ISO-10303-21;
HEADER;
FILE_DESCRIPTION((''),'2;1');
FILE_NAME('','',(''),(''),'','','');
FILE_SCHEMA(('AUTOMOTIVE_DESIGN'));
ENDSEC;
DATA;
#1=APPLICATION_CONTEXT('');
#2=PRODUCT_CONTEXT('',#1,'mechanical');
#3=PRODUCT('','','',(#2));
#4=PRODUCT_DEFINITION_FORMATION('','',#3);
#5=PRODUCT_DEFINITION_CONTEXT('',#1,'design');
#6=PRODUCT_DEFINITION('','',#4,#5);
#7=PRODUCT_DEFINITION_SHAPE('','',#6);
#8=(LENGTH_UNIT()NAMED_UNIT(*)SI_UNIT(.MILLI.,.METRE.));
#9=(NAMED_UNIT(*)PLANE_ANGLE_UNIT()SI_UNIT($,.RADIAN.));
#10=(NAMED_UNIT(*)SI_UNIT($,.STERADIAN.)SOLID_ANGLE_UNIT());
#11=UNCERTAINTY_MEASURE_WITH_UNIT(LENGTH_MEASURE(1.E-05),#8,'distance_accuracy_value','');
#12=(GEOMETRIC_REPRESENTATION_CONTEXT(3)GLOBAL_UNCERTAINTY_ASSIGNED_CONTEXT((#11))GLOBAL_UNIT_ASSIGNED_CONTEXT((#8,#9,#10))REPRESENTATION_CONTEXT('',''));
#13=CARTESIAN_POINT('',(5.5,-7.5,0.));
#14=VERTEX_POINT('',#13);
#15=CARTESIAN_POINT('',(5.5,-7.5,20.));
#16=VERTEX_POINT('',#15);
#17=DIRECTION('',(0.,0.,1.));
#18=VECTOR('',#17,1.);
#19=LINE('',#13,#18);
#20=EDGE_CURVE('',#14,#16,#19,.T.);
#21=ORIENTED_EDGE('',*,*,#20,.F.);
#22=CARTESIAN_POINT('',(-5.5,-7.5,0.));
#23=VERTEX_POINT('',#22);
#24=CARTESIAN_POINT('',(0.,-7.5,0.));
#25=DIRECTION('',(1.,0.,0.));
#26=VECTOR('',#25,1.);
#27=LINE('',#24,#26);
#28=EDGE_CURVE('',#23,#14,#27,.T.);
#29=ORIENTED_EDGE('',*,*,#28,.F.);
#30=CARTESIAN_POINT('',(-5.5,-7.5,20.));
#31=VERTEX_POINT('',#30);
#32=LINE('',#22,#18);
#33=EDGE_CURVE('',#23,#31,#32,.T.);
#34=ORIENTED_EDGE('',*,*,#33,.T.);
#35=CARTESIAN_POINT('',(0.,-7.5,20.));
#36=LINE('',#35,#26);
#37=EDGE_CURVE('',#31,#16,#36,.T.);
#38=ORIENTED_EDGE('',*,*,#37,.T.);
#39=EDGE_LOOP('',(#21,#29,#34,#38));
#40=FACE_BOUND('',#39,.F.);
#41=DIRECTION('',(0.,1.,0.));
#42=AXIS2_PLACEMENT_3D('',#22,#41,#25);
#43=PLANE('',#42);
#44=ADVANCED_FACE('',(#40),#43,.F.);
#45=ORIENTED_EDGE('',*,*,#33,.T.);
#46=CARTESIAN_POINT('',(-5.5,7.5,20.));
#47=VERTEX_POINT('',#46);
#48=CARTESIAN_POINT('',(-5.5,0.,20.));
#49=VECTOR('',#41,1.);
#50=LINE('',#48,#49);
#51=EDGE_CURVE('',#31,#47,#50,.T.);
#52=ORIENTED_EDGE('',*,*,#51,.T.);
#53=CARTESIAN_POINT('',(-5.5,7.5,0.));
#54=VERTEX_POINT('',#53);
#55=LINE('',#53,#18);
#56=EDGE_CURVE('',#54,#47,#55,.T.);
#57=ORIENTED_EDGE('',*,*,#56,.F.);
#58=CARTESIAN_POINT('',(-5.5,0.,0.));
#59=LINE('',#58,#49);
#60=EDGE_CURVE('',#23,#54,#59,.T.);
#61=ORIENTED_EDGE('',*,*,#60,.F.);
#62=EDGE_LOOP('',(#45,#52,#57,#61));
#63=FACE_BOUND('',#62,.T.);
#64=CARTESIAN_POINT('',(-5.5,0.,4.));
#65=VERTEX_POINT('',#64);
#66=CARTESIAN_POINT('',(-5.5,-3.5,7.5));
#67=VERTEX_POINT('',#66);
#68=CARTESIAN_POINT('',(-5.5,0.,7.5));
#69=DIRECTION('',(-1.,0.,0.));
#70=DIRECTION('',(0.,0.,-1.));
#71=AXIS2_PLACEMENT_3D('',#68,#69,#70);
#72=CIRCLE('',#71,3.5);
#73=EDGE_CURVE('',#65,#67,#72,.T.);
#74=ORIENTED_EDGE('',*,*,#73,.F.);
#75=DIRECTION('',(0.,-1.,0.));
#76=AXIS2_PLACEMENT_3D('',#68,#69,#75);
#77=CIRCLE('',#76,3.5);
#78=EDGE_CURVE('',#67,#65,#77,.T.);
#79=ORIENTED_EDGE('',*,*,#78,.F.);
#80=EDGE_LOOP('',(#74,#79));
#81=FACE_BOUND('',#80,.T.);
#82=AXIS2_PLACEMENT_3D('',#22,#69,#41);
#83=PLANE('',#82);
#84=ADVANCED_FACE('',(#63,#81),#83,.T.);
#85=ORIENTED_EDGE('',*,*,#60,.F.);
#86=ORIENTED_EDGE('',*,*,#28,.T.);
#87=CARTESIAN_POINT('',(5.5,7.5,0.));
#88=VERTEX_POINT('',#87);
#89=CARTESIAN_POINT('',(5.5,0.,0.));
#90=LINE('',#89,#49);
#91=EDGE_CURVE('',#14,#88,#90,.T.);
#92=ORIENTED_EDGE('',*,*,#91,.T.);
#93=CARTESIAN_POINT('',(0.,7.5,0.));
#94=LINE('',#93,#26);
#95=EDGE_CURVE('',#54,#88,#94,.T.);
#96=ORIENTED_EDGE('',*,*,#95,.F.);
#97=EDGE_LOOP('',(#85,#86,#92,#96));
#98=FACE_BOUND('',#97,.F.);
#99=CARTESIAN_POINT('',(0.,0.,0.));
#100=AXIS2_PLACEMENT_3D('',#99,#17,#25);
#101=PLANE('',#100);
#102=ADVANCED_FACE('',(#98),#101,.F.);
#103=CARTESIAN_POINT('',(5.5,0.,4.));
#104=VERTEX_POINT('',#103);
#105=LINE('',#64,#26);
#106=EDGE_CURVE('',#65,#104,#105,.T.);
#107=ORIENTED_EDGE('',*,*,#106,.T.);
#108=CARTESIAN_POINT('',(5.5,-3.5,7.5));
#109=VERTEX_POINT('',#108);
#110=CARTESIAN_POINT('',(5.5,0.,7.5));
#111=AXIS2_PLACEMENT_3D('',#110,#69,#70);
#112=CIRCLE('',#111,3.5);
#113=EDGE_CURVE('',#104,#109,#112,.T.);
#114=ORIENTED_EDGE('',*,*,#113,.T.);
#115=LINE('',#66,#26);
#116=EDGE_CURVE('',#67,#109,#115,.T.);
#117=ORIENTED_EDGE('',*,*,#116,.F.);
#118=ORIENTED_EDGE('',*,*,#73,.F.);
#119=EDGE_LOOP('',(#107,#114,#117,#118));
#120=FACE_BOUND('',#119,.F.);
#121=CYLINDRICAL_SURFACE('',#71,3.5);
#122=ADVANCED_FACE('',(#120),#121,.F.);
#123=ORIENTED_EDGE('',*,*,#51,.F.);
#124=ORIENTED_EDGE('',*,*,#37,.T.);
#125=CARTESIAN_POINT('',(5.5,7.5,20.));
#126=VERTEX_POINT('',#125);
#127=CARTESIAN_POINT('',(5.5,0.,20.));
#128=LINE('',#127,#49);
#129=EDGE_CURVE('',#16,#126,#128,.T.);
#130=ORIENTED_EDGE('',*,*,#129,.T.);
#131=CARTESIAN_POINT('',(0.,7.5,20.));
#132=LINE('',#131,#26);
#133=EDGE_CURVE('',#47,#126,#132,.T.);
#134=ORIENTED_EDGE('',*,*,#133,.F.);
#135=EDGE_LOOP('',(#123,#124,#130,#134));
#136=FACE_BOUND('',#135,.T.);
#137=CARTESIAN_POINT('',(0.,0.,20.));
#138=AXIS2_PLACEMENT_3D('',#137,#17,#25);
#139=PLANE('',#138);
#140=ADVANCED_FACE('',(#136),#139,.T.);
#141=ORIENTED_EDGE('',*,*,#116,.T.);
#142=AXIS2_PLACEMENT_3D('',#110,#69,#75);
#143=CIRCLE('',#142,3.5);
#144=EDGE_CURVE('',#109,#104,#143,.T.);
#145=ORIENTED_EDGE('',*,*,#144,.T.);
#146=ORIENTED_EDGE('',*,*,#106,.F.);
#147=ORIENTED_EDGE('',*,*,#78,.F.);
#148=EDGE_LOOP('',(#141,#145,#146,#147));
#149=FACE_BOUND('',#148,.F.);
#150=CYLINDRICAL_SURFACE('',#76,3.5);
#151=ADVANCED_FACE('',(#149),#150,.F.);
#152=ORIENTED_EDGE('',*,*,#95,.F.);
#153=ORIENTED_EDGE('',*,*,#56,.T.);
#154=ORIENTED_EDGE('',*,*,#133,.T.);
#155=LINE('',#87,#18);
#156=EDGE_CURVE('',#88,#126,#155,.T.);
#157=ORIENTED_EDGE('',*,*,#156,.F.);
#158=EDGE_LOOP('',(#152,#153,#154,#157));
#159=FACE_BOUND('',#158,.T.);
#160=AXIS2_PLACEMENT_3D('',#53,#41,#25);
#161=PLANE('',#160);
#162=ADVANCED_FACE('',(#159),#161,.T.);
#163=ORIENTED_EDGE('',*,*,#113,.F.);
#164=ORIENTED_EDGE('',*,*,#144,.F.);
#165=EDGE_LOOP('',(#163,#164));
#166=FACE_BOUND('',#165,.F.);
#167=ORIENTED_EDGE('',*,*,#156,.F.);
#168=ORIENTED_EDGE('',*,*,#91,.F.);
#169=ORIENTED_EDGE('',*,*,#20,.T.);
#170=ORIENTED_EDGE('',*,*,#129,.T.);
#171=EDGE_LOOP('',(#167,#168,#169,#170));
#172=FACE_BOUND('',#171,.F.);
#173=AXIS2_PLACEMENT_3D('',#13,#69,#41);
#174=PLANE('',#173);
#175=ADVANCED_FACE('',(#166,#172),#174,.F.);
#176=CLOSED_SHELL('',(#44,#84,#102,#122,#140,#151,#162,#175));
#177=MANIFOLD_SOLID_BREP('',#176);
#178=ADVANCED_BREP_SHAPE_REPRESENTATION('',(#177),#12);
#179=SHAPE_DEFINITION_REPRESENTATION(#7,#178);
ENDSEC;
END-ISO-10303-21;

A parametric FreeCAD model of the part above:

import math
import FreeCAD as App
import Part
import Sketcher
from FreeCAD import Vector
Q = App.Units.Quantity


def add_polygon(sketch, points):
    """Adds a closed chain of lines whose ends are joined by coincident constraints."""
    first, n = sketch.GeometryCount, len(points)
    for a, b in zip(points, points[1:] + points[:1]):
        sketch.addGeometry(Part.LineSegment(App.Vector(*a, 0), App.Vector(*b, 0)), False)
    for i in range(n):
        sketch.addConstraint(Sketcher.Constraint("Coincident", first + i, 2, first + (i + 1) % n, 1))

doc = App.newDocument("Part")
body = doc.addObject("PartDesign::Body", "Body")

# Sketch on XY plane
sketch1 = body.newObject("Sketcher::SketchObject", "Sketch")
sketch1.AttachmentSupport = (doc.getObject("XY_Plane"), [""])
sketch1.MapMode = "FlatFace"
add_polygon(sketch1, [(-6, 8), (-6, -8), (6, -8), (6, 8)])  # lines 0-3
sketch1.addConstraint([
    Sketcher.Constraint("Vertical", 0),
    Sketcher.Constraint("Horizontal", 1),
    Sketcher.Constraint("Vertical", 2),
    Sketcher.Constraint("Horizontal", 3),
    Sketcher.Constraint("Symmetric", 0, 2, 2, 2, -1, 1),
    Sketcher.Constraint("DistanceX", 1, 1, 1, 2, Q("11 mm")),
    Sketcher.Constraint("DistanceY", 0, 2, 0, 1, Q("15 mm")),
])
pad1 = body.newObject("PartDesign::Pad", "Pad")
pad1.Profile = sketch1
pad1.Length = 20
body2 = doc.addObject("PartDesign::Body", "Body001")

# Sketch on XY plane
sketch2 = body2.newObject("Sketcher::SketchObject", "Sketch001")
sketch2.AttachmentSupport = (doc.getObject("XY_Plane001"), [""])
sketch2.MapMode = "FlatFace"
sketch2.addGeometry([
    Part.ArcOfCircle(Part.Circle(Vector(0, 0, 0), Vector(0, 0, 1), 10), math.radians(49), math.radians(364)),
    Part.LineSegment(Vector(6.6, 7.5, 0), Vector(7.9, 9, 0)),
    Part.ArcOfCircle(Part.Circle(Vector(0, 0, 0), Vector(0, 0, 1), 12), math.radians(49), math.radians(364)),
    Part.LineSegment(Vector(12, 0.8, 0), Vector(10, 0.7, 0)),
], False)
sketch2.addConstraint([
    Sketcher.Constraint("Coincident", 0, 1, 1, 1),
    Sketcher.Constraint("Coincident", 1, 2, 2, 1),
    Sketcher.Constraint("Coincident", 2, 2, 3, 1),
    Sketcher.Constraint("Coincident", 3, 2, 0, 2),
    Sketcher.Constraint("Coincident", 0, 3, -1, 1),
    Sketcher.Constraint("Coincident", 2, 3, -1, 1),
    Sketcher.Constraint("Radius", 0, Q("10 mm")),
    Sketcher.Constraint("Radius", 2, Q("12 mm")),
    Sketcher.Constraint("DistanceY", 2, 2, 1, 2, Q("8.2337 mm")),
    Sketcher.Constraint("DistanceX", -1, 1, 0, 1, Q("6.58691 mm")),
    Sketcher.Constraint("DistanceX", -1, 1, 1, 2, Q("7.904292 mm")),
    Sketcher.Constraint("DistanceY", -1, 1, 3, 2, Q("0.662719 mm")),
])
pad2 = body2.newObject("PartDesign::Pad", "Pad001")
pad2.Profile = sketch2
pad2.Length = 19
body3 = doc.addObject("PartDesign::Body", "Body002")

# Sketch on YZ plane
sketch3 = body3.newObject("Sketcher::SketchObject", "Sketch002")
sketch3.AttachmentSupport = (doc.getObject("YZ_Plane002"), [""])
sketch3.MapMode = "FlatFace"
sketch3.AttachmentOffset = App.Placement(Vector(0, 0, -5.5), App.Rotation())
sketch3.addGeometry([
    Part.ArcOfCircle(Part.Circle(Vector(0, 7.5, 0), Vector(0, 0, 1), 3.5), math.radians(180), math.radians(270)),
    Part.ArcOfCircle(Part.Circle(Vector(0, 7.5, 0), Vector(0, 0, 1), 3.5), math.radians(-90), math.radians(180)),
], False)
sketch3.addConstraint([
    Sketcher.Constraint("Tangent", 0, 1, 1, 2),
    Sketcher.Constraint("Coincident", 1, 1, 0, 2),
    Sketcher.Constraint("PointOnObject", 0, 3, -2),
    Sketcher.Constraint("PointOnObject", 1, 1, -2),
    Sketcher.Constraint("Horizontal", 1, 3, 0, 1),
    Sketcher.Constraint("Radius", 0, Q("3.5 mm")),
    Sketcher.Constraint("DistanceY", -1, 1, 1, 1, Q("4 mm")),
])
pad3 = body3.newObject("PartDesign::Pad", "Pad002")
pad3.Profile = sketch3
pad3.Length = 15
doc.recompute()

body4 = doc.addObject("PartDesign::Body", "Body003")
body4.BaseFeature = body3
boolean = body.newObject("PartDesign::Boolean", "Boolean")
boolean.Type = "Cut"
boolean.addObjects([body4])
doc.recompute()

boolean2 = body2.newObject("PartDesign::Boolean", "Boolean001")
boolean2.Type = "Cut"
boolean2.addObjects([body3])
body2.Visibility = False

doc.recompute()
